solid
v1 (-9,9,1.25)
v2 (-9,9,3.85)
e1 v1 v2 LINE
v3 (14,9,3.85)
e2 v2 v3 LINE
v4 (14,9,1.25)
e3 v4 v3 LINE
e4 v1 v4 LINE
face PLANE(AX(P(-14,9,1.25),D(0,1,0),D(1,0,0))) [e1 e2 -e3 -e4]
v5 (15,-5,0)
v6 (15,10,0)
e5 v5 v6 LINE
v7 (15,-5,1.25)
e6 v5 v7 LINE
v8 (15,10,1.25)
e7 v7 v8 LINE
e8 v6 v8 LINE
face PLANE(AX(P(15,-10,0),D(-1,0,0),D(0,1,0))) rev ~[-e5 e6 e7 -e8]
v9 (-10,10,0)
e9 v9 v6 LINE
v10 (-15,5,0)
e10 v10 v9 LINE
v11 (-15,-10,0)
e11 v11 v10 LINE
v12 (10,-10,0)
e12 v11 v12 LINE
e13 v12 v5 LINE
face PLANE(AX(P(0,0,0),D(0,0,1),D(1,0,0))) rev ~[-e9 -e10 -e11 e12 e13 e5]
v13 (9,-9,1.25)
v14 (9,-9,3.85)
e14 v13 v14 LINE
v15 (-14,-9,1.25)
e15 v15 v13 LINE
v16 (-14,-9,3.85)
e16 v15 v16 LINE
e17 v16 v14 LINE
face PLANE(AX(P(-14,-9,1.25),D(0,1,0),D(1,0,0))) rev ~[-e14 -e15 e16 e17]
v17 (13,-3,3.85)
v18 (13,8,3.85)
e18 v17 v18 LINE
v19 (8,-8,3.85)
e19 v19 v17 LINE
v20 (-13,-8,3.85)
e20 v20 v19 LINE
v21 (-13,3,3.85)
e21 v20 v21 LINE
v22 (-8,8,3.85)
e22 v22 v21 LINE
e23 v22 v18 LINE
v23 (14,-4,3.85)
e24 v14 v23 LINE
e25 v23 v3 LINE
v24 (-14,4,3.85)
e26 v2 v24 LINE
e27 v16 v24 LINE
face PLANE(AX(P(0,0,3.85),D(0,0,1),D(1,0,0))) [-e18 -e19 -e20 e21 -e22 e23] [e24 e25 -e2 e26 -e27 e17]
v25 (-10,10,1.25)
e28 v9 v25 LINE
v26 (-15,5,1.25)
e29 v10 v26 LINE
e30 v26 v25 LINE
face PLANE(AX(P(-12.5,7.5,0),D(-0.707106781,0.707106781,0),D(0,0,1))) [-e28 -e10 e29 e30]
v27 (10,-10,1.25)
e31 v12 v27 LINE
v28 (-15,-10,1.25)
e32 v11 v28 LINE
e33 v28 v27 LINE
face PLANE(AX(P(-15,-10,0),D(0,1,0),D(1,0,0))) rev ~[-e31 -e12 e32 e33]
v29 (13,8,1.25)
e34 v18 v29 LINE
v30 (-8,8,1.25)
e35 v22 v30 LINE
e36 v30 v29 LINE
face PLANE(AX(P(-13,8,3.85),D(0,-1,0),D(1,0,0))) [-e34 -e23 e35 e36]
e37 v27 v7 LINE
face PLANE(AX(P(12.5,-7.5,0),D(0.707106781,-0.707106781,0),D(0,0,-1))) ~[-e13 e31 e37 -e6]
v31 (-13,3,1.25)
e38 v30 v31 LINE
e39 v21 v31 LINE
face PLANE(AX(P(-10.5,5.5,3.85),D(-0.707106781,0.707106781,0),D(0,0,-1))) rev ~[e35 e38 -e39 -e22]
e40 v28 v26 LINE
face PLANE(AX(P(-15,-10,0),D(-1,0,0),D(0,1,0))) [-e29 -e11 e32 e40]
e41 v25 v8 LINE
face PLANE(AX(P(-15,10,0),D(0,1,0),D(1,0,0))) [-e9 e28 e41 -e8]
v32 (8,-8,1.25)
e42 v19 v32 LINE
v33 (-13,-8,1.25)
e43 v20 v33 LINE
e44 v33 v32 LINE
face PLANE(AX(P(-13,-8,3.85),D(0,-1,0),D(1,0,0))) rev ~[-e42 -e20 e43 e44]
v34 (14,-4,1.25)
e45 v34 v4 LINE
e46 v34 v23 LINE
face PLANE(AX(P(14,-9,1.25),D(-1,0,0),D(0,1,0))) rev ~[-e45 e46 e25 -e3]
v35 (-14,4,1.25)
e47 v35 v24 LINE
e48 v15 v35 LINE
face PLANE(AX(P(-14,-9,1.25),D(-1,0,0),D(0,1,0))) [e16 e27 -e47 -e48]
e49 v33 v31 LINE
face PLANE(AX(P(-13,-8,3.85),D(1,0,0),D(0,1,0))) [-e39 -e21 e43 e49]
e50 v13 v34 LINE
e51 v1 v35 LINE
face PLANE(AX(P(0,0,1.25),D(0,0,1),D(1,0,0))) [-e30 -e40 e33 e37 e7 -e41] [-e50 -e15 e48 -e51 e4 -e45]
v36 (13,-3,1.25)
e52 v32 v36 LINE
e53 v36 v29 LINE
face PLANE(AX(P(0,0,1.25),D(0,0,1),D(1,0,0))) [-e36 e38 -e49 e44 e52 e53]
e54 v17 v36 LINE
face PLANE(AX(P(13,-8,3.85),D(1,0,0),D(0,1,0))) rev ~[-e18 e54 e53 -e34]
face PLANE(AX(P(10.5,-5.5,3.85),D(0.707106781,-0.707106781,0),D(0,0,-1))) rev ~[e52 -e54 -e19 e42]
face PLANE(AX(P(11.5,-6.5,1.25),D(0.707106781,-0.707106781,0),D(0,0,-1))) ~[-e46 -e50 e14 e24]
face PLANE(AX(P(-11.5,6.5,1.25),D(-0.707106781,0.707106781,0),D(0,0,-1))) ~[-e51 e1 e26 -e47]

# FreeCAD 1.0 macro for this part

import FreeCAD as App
import Part
import Sketcher


def edges_at(feature, points):
    """Names of the edges that pass closest to the given points."""
    edges = feature.Shape.Edges
    near = lambda p: min(range(len(edges)), key=lambda i: edges[i].distToShape(Part.Vertex(*p))[0])
    return sorted({f"Edge{near(p) + 1}" for p in points})

doc = App.newDocument("Part")
body = doc.addObject("PartDesign::Body", "Body")

# Sketch on XY plane
sketch1 = body.newObject("Sketcher::SketchObject", "Sketch")
sketch1.AttachmentSupport = (doc.getObject("XY_Plane"), [""])
sketch1.MapMode = "FlatFace"
sketch1.addGeometry(Part.LineSegment(App.Vector(-15, 10, 0), App.Vector(-15, -10, 0)), False)
sketch1.addGeometry(Part.LineSegment(App.Vector(-15, -10, 0), App.Vector(15, -10, 0)), False)
sketch1.addGeometry(Part.LineSegment(App.Vector(15, -10, 0), App.Vector(15, 10, 0)), False)
sketch1.addGeometry(Part.LineSegment(App.Vector(15, 10, 0), App.Vector(-15, 10, 0)), False)
sketch1.addConstraint(Sketcher.Constraint("Coincident", 0, 2, 1, 1))
sketch1.addConstraint(Sketcher.Constraint("Coincident", 1, 2, 2, 1))
sketch1.addConstraint(Sketcher.Constraint("Coincident", 2, 2, 3, 1))
sketch1.addConstraint(Sketcher.Constraint("Coincident", 3, 2, 0, 1))
sketch1.addConstraint(Sketcher.Constraint("Vertical", 0))
sketch1.addConstraint(Sketcher.Constraint("Horizontal", 1))
sketch1.addConstraint(Sketcher.Constraint("Vertical", 2))
sketch1.addConstraint(Sketcher.Constraint("Horizontal", 3))
sketch1.addConstraint(Sketcher.Constraint("Symmetric", 0, 2, 2, 2, -1, 1))
sketch1.addConstraint(Sketcher.Constraint("DistanceX", 1, 1, 1, 2, 30.0))
sketch1.addConstraint(Sketcher.Constraint("DistanceY", 0, 2, 0, 1, 20.0))
pad1 = body.newObject("PartDesign::Pad", "Pad")
pad1.Profile = sketch1
pad1.Length = 1.25

# Sketch on XY plane
sketch2 = body.newObject("Sketcher::SketchObject", "Sketch001")
sketch2.AttachmentSupport = (doc.getObject("XY_Plane"), [""])
sketch2.MapMode = "FlatFace"
sketch2.AttachmentOffset = App.Placement(App.Vector(0, 0, 1.25), App.Rotation())
sketch2.addGeometry(Part.LineSegment(App.Vector(-14, 9, 0), App.Vector(-14, -9, 0)), False)
sketch2.addGeometry(Part.LineSegment(App.Vector(-14, -9, 0), App.Vector(14, -9, 0)), False)
sketch2.addGeometry(Part.LineSegment(App.Vector(14, -9, 0), App.Vector(14, 9, 0)), False)
sketch2.addGeometry(Part.LineSegment(App.Vector(14, 9, 0), App.Vector(-14, 9, 0)), False)
sketch2.addConstraint(Sketcher.Constraint("Coincident", 0, 2, 1, 1))
sketch2.addConstraint(Sketcher.Constraint("Coincident", 1, 2, 2, 1))
sketch2.addConstraint(Sketcher.Constraint("Coincident", 2, 2, 3, 1))
sketch2.addConstraint(Sketcher.Constraint("Coincident", 3, 2, 0, 1))
sketch2.addConstraint(Sketcher.Constraint("Vertical", 0))
sketch2.addConstraint(Sketcher.Constraint("Horizontal", 1))
sketch2.addConstraint(Sketcher.Constraint("Vertical", 2))
sketch2.addConstraint(Sketcher.Constraint("Horizontal", 3))
sketch2.addConstraint(Sketcher.Constraint("Symmetric", 0, 2, 2, 2, -1, 1))
sketch2.addConstraint(Sketcher.Constraint("DistanceX", 1, 1, 1, 2, 28.0))
sketch2.addConstraint(Sketcher.Constraint("DistanceY", 0, 2, 0, 1, 18.0))
pad2 = body.newObject("PartDesign::Pad", "Pad001")
pad2.Profile = sketch2
pad2.Length = 2.6

# Sketch on XY plane
sketch3 = body.newObject("Sketcher::SketchObject", "Sketch002")
sketch3.AttachmentSupport = (doc.getObject("XY_Plane"), [""])
sketch3.MapMode = "FlatFace"
sketch3.AttachmentOffset = App.Placement(App.Vector(0, 0, 3.85), App.Rotation())
sketch3.addGeometry(Part.LineSegment(App.Vector(-13, 8, 0), App.Vector(-13, -8, 0)), False)
sketch3.addGeometry(Part.LineSegment(App.Vector(-13, -8, 0), App.Vector(13, -8, 0)), False)
sketch3.addGeometry(Part.LineSegment(App.Vector(13, -8, 0), App.Vector(13, 8, 0)), False)
sketch3.addGeometry(Part.LineSegment(App.Vector(13, 8, 0), App.Vector(-13, 8, 0)), False)
sketch3.addConstraint(Sketcher.Constraint("Coincident", 0, 2, 1, 1))
sketch3.addConstraint(Sketcher.Constraint("Coincident", 1, 2, 2, 1))
sketch3.addConstraint(Sketcher.Constraint("Coincident", 2, 2, 3, 1))
sketch3.addConstraint(Sketcher.Constraint("Coincident", 3, 2, 0, 1))
sketch3.addConstraint(Sketcher.Constraint("Vertical", 0))
sketch3.addConstraint(Sketcher.Constraint("Horizontal", 1))
sketch3.addConstraint(Sketcher.Constraint("Vertical", 2))
sketch3.addConstraint(Sketcher.Constraint("Horizontal", 3))
sketch3.addConstraint(Sketcher.Constraint("Symmetric", 0, 2, 2, 2, -1, 1))
sketch3.addConstraint(Sketcher.Constraint("DistanceX", 1, 1, 1, 2, 26.0))
sketch3.addConstraint(Sketcher.Constraint("DistanceY", 0, 2, 0, 1, 16.0))
pocket1 = body.newObject("PartDesign::Pocket", "Pocket")
pocket1.Profile = sketch3
pocket1.Length = 2.6
doc.recompute()

chamfer = body.newObject("PartDesign::Chamfer", "Chamfer")
chamfer.Base = (pocket1, edges_at(pocket1, [
    (-13, 8, 2.55),
    (13, -8, 2.55),
    (-14, 9, 2.55),
    (14, -9, 2.55),
]))
chamfer.Size = 5
doc.recompute()

chamfer2 = body.newObject("PartDesign::Chamfer", "Chamfer001")
chamfer2.Base = (chamfer, edges_at(chamfer, [(15, -10, 0.625), (-15, 10, 0.625)]))
chamfer2.Size = 5

doc.recompute()
